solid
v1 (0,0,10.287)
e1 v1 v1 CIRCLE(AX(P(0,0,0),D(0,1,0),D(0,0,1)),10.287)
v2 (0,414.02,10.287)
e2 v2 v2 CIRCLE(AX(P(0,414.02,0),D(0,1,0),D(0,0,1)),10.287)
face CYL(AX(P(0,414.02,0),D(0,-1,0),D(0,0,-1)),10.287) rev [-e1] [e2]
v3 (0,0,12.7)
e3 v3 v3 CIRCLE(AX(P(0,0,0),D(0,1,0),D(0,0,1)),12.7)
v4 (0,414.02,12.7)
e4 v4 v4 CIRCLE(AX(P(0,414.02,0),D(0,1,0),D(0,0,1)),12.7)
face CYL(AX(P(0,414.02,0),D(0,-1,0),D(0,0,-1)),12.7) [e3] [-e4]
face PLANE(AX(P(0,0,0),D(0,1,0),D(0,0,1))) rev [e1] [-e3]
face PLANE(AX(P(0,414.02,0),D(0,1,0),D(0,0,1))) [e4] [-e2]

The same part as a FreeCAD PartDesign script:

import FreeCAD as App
import Part
import Sketcher
from FreeCAD import Vector
Q = App.Units.Quantity


def faces_at(feature, points):
    """Names of the faces that lie closest to the given points."""
    faces = feature.Shape.Faces
    near = lambda p: min(range(len(faces)), key=lambda i: faces[i].distToShape(Part.Vertex(*p))[0])
    return sorted({f"Face{near(p) + 1}" for p in points})

doc = App.newDocument("Part")
body = doc.addObject("PartDesign::Body", "Body")

# Sketch on XZ plane
sketch1 = doc.addObject("Sketcher::SketchObject", "Sketch")
body.addObject(sketch1)
sketch1.AttachmentSupport = (doc.XZ_Plane, [""])
sketch1.MapMode = "FlatFace"
sketch1.addGeometry(Part.Circle(Vector(0, 0, 0), Vector(0, 0, 1), 13), False)
sketch1.addConstraint([
    Sketcher.Constraint("Coincident", 0, 3, -1, 1),
    Sketcher.Constraint("Diameter", 0, Q("1 in")),
])
pad1 = doc.addObject("PartDesign::Pad", "Pad")
body.addObject(pad1)
pad1.Profile = sketch1
pad1.Length = Q("16.3 in")
pad1.Reversed = True
doc.recompute()

thickness = doc.addObject("PartDesign::Thickness", "Thickness")
body.addObject(thickness)
thickness.Base = (pad1, faces_at(pad1, [(0, 414.02, 0)]))
thickness.Value = Q("0.095 in")
thickness.Reversed = True
thickness.Join = "Intersection"

# Sketch on XZ plane
sketch2 = doc.addObject("Sketcher::SketchObject", "Sketch001")
body.addObject(sketch2)
sketch2.AttachmentSupport = (doc.XZ_Plane, [""])
sketch2.MapMode = "FlatFace"
sketch2.AttachmentOffset = App.Placement(Vector(0, 0, -0.095 * 25.4), App.Rotation())
sketch2.addGeometry(Part.Circle(Vector(0, 0, 0), Vector(0, 0, 1), 10), False)
sketch2.addConstraint([
    Sketcher.Constraint("Coincident", 0, 3, -1, 1),
    Sketcher.Constraint("Diameter", 0, Q("0.81 in")),
])
pocket1 = doc.addObject("PartDesign::Pocket", "Pocket")
body.addObject(pocket1)
pocket1.Profile = sketch2
pocket1.Type = "ThroughAll"
pocket1.Reversed = True

doc.recompute()
